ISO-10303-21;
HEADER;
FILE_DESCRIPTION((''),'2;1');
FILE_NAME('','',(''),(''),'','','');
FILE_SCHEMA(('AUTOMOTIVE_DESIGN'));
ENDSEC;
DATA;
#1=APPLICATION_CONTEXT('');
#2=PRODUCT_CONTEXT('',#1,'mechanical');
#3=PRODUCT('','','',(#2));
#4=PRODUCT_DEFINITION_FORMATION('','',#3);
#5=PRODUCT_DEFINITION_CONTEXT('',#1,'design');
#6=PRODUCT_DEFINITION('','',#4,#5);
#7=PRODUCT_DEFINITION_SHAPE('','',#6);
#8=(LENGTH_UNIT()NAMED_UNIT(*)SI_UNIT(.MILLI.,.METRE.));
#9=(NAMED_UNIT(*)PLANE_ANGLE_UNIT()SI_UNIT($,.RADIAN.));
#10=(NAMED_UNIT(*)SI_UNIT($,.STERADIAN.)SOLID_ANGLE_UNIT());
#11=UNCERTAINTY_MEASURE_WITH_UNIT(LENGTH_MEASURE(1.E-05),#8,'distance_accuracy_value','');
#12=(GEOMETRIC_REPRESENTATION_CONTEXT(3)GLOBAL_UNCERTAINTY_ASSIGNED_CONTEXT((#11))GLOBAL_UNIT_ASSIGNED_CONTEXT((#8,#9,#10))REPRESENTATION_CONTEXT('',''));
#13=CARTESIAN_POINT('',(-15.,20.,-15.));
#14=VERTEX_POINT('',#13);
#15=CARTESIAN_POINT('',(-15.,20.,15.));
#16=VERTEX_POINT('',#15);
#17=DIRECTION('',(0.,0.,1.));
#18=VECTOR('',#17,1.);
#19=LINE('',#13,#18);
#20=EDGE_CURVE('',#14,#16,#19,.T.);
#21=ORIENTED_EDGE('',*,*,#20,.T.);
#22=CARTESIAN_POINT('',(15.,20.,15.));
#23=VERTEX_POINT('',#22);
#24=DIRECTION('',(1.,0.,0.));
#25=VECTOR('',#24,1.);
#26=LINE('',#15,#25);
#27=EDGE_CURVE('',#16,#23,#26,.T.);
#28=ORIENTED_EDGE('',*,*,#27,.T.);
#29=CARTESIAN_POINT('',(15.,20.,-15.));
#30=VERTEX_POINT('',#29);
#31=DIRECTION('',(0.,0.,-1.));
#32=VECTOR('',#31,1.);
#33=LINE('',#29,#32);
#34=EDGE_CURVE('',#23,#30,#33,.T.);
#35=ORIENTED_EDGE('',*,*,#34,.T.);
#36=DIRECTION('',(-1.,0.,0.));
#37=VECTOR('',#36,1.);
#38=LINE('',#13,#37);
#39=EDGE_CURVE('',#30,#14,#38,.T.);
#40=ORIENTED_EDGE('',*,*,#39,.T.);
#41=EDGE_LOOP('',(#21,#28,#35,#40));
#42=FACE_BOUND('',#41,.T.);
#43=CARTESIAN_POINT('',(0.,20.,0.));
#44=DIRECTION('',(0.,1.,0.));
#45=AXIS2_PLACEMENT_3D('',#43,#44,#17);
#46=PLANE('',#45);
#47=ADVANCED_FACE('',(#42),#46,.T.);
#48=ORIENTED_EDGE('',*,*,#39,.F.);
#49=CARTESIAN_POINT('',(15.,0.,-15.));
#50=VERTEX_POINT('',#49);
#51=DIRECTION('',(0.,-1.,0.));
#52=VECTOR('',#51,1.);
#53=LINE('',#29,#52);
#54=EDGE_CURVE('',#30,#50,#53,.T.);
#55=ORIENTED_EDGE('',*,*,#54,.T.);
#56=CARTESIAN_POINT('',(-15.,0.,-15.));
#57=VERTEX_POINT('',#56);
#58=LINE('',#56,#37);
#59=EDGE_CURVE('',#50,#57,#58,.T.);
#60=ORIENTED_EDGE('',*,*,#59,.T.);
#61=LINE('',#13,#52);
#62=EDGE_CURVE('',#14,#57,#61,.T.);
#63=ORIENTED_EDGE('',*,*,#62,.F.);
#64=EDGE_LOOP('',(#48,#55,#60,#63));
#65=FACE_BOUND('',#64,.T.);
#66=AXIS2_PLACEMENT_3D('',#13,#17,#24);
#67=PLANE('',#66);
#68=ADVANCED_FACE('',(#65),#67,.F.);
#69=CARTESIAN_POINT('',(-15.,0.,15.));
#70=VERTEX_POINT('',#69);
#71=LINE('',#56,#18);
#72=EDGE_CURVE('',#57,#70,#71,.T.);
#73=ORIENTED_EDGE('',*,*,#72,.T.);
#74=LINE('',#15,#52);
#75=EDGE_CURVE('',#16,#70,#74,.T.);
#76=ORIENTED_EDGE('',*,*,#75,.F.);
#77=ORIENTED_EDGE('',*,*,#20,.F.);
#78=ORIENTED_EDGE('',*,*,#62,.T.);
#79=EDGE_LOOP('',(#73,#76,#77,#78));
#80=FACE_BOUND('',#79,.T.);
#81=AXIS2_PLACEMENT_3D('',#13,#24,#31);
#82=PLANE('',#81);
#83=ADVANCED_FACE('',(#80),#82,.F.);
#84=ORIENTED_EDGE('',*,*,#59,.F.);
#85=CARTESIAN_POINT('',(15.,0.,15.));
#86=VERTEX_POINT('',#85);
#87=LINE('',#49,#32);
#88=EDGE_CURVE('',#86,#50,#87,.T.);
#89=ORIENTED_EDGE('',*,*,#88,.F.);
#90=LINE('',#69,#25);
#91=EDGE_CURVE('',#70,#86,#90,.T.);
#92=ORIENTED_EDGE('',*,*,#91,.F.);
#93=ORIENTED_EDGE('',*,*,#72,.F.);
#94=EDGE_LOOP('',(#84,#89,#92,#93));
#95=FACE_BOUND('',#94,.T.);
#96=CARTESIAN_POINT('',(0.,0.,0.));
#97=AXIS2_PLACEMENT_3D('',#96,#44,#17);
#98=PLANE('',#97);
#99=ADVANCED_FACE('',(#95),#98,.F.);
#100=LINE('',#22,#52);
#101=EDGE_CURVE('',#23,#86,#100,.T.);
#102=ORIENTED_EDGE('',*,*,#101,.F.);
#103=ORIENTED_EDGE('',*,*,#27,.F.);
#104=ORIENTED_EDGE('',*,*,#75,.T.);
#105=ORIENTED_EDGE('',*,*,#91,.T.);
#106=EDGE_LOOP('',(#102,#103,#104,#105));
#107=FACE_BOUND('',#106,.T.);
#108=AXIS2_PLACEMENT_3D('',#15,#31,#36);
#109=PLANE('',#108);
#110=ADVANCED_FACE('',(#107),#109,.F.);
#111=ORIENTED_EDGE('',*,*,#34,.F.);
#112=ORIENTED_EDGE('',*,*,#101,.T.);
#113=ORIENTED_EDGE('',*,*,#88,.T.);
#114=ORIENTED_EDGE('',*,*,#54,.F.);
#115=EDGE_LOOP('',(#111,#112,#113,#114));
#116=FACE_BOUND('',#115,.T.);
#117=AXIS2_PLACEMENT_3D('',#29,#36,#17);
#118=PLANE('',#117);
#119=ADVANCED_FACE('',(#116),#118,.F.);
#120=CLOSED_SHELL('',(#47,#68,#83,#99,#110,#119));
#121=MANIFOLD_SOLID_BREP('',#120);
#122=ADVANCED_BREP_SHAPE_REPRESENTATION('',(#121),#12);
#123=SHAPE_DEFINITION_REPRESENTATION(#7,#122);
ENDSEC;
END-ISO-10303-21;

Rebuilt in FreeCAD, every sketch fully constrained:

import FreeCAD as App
import Part
import Sketcher

V = App.Vector

doc = App.newDocument("Part")
body = doc.addObject("PartDesign::Body", "Body")

# Sketch on XZ plane
sketch1 = doc.addObject("Sketcher::SketchObject", "Sketch")
body.addObject(sketch1)
sketch1.AttachmentSupport = (doc.XZ_Plane, [""])
sketch1.MapMode = "FlatFace"
sketch1.addGeometry(Part.LineSegment(V(-15, -15, 0), V(-15, 15, 0)), False)
sketch1.addGeometry(Part.LineSegment(V(-15, 15, 0), V(15, 15, 0)), False)
sketch1.addGeometry(Part.LineSegment(V(15, 15, 0), V(15, -15, 0)), False)
sketch1.addGeometry(Part.LineSegment(V(15, -15, 0), V(-15, -15, 0)), False)
sketch1.addConstraint(Sketcher.Constraint("Coincident", 0, 2, 1, 1))
sketch1.addConstraint(Sketcher.Constraint("Coincident", 1, 2, 2, 1))
sketch1.addConstraint(Sketcher.Constraint("Coincident", 2, 2, 3, 1))
sketch1.addConstraint(Sketcher.Constraint("Coincident", 3, 2, 0, 1))
sketch1.addConstraint(Sketcher.Constraint("Vertical", 0))
sketch1.addConstraint(Sketcher.Constraint("Horizontal", 1))
sketch1.addConstraint(Sketcher.Constraint("Vertical", 2))
sketch1.addConstraint(Sketcher.Constraint("Horizontal", 3))
sketch1.addConstraint(Sketcher.Constraint("Symmetric", 0, 2, 2, 2, -1, 1))
sketch1.addConstraint(Sketcher.Constraint("Equal", 3, 0))
sketch1.addConstraint(Sketcher.Constraint("DistanceX", 1, 1, 1, 2, 30.0))
pad1 = doc.addObject("PartDesign::Pad", "Pad")
body.addObject(pad1)
pad1.Profile = sketch1
pad1.Length = 20
pad1.Reversed = True

doc.recompute()
